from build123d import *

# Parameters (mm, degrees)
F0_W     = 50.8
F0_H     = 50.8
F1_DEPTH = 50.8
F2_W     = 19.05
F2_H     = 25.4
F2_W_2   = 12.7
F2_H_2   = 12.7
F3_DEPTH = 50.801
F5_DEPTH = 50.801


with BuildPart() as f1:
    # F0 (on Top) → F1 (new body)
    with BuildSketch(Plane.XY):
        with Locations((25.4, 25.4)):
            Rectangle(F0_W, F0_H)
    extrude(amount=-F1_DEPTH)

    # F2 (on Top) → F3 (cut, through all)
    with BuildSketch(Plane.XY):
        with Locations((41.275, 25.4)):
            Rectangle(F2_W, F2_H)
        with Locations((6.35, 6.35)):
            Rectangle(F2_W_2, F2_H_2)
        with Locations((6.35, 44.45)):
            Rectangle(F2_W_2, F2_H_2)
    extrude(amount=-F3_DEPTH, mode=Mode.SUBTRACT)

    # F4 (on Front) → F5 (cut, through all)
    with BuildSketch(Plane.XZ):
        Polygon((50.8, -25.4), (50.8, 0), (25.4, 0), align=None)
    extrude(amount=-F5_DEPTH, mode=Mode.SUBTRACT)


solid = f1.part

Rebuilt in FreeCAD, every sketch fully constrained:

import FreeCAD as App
import Part
import Sketcher

V = App.Vector
Q = App.Units.Quantity

doc = App.newDocument("Part")
body = doc.addObject("PartDesign::Body", "Body")

# Sketch on XY plane
sketch1 = body.newObject("Sketcher::SketchObject", "Sketch")
sketch1.AttachmentSupport = (doc.getObject("XY_Plane"), [""])
sketch1.MapMode = "FlatFace"
sketch1.addGeometry([
    Part.LineSegment(V(0, 51, 0), V(0, 0, 0)),
    Part.LineSegment(V(0, 0, 0), V(51, 0, 0)),
    Part.LineSegment(V(51, 0, 0), V(51, 51, 0)),
    Part.LineSegment(V(51, 51, 0), V(0, 51, 0)),
], False)
sketch1.addConstraint([
    Sketcher.Constraint("Coincident", 0, 2, 1, 1),
    Sketcher.Constraint("Coincident", 1, 2, 2, 1),
    Sketcher.Constraint("Coincident", 2, 2, 3, 1),
    Sketcher.Constraint("Coincident", 3, 2, 0, 1),
    Sketcher.Constraint("Vertical", 0),
    Sketcher.Constraint("Horizontal", 1),
    Sketcher.Constraint("Vertical", 2),
    Sketcher.Constraint("Horizontal", 3),
    Sketcher.Constraint("Coincident", 0, 2, -1, 1),
    Sketcher.Constraint("Equal", 3, 0),
    Sketcher.Constraint("DistanceX", 1, 1, 1, 2, Q("2 in")),
])
pad1 = body.newObject("PartDesign::Pad", "Pad")
pad1.Profile = sketch1
pad1.Length = Q("2 in")
pad1.Reversed = True

# Sketch on XY plane
sketch2 = body.newObject("Sketcher::SketchObject", "Sketch001")
sketch2.AttachmentSupport = (doc.getObject("XY_Plane"), [""])
sketch2.MapMode = "FlatFace"
sketch2.addGeometry([
    Part.LineSegment(V(32, 38, 0), V(32, 13, 0)),  # 0
    Part.LineSegment(V(32, 13, 0), V(51, 13, 0)),  # 1
    Part.LineSegment(V(51, 13, 0), V(51, 38, 0)),  # 2
    Part.LineSegment(V(51, 38, 0), V(32, 38, 0)),  # 3
    Part.LineSegment(V(0, 13, 0), V(0, 0, 0)),  # 4
    Part.LineSegment(V(0, 0, 0), V(13, 0, 0)),  # 5
    Part.LineSegment(V(13, 0, 0), V(13, 13, 0)),  # 6
    Part.LineSegment(V(13, 13, 0), V(0, 13, 0)),  # 7
    Part.LineSegment(V(0, 51, 0), V(0, 38, 0)),  # 8
    Part.LineSegment(V(0, 38, 0), V(13, 38, 0)),  # 9
    Part.LineSegment(V(13, 38, 0), V(13, 51, 0)),  # 10
    Part.LineSegment(V(13, 51, 0), V(0, 51, 0)),  # 11
], False)
sketch2.addConstraint([
    Sketcher.Constraint("Coincident", 0, 2, 1, 1),
    Sketcher.Constraint("Coincident", 1, 2, 2, 1),
    Sketcher.Constraint("Coincident", 2, 2, 3, 1),
    Sketcher.Constraint("Coincident", 3, 2, 0, 1),
    Sketcher.Constraint("Coincident", 4, 2, 5, 1),
    Sketcher.Constraint("Coincident", 5, 2, 6, 1),
    Sketcher.Constraint("Coincident", 6, 2, 7, 1),
    Sketcher.Constraint("Coincident", 7, 2, 4, 1),
    Sketcher.Constraint("Coincident", 8, 2, 9, 1),
    Sketcher.Constraint("Coincident", 9, 2, 10, 1),
    Sketcher.Constraint("Coincident", 10, 2, 11, 1),
    Sketcher.Constraint("Coincident", 11, 2, 8, 1),
    Sketcher.Constraint("Vertical", 0),
    Sketcher.Constraint("Horizontal", 1),
    Sketcher.Constraint("Vertical", 2),
    Sketcher.Constraint("Horizontal", 3),
    Sketcher.Constraint("Vertical", 4),
    Sketcher.Constraint("Horizontal", 5),
    Sketcher.Constraint("Vertical", 6),
    Sketcher.Constraint("Horizontal", 7),
    Sketcher.Constraint("Vertical", 8),
    Sketcher.Constraint("Horizontal", 9),
    Sketcher.Constraint("Vertical", 10),
    Sketcher.Constraint("Horizontal", 11),
    Sketcher.Constraint("Coincident", 4, 2, -1, 1),
    Sketcher.Constraint("PointOnObject", 8, 2, -2),
    Sketcher.Constraint("Horizontal", 1, 2, 6, 2),
    Sketcher.Constraint("Horizontal", 3, 2, 8, 2),
    Sketcher.Constraint("Vertical", 6, 2, 9, 2),
    Sketcher.Constraint("Equal", 11, 4),
    Sketcher.Constraint("Equal", 6, 8),
    Sketcher.Constraint("DistanceY", 0, 2, 0, 1, Q("1 in")),
    Sketcher.Constraint("DistanceX", 5, 1, 5, 2, Q("0.5 in")),
    Sketcher.Constraint("DistanceX", -1, 1, 1, 2, Q("2 in")),
    Sketcher.Constraint("DistanceX", 1, 1, 1, 2, Q("0.75 in")),
])
pocket1 = body.newObject("PartDesign::Pocket", "Pocket")
pocket1.Profile = sketch2
pocket1.Type = "ThroughAll"

# Sketch on XZ plane
sketch3 = body.newObject("Sketcher::SketchObject", "Sketch002")
sketch3.AttachmentSupport = (doc.getObject("XZ_Plane"), [""])
sketch3.MapMode = "FlatFace"
sketch3.addGeometry([
    Part.LineSegment(V(51, -25, 0), V(51, 0, 0)),
    Part.LineSegment(V(51, 0, 0), V(25, 0, 0)),
    Part.LineSegment(V(25, 0, 0), V(51, -25, 0)),
], False)
sketch3.addConstraint([
    Sketcher.Constraint("Coincident", 0, 2, 1, 1),
    Sketcher.Constraint("Coincident", 1, 2, 2, 1),
    Sketcher.Constraint("Coincident", 2, 2, 0, 1),
    Sketcher.Constraint("Vertical", 0),
    Sketcher.Constraint("Horizontal", 1),
    Sketcher.Constraint("PointOnObject", 0, 2, -1),
    Sketcher.Constraint("Equal", 1, 0),
    Sketcher.Constraint("DistanceX", 1, 2, 1, 1, Q("1 in")),
    Sketcher.Constraint("DistanceX", -1, 1, 0, 2, Q("2 in")),
])
pocket2 = body.newObject("PartDesign::Pocket", "Pocket001")
pocket2.Profile = sketch3
pocket2.Type = "ThroughAll"

doc.recompute()
